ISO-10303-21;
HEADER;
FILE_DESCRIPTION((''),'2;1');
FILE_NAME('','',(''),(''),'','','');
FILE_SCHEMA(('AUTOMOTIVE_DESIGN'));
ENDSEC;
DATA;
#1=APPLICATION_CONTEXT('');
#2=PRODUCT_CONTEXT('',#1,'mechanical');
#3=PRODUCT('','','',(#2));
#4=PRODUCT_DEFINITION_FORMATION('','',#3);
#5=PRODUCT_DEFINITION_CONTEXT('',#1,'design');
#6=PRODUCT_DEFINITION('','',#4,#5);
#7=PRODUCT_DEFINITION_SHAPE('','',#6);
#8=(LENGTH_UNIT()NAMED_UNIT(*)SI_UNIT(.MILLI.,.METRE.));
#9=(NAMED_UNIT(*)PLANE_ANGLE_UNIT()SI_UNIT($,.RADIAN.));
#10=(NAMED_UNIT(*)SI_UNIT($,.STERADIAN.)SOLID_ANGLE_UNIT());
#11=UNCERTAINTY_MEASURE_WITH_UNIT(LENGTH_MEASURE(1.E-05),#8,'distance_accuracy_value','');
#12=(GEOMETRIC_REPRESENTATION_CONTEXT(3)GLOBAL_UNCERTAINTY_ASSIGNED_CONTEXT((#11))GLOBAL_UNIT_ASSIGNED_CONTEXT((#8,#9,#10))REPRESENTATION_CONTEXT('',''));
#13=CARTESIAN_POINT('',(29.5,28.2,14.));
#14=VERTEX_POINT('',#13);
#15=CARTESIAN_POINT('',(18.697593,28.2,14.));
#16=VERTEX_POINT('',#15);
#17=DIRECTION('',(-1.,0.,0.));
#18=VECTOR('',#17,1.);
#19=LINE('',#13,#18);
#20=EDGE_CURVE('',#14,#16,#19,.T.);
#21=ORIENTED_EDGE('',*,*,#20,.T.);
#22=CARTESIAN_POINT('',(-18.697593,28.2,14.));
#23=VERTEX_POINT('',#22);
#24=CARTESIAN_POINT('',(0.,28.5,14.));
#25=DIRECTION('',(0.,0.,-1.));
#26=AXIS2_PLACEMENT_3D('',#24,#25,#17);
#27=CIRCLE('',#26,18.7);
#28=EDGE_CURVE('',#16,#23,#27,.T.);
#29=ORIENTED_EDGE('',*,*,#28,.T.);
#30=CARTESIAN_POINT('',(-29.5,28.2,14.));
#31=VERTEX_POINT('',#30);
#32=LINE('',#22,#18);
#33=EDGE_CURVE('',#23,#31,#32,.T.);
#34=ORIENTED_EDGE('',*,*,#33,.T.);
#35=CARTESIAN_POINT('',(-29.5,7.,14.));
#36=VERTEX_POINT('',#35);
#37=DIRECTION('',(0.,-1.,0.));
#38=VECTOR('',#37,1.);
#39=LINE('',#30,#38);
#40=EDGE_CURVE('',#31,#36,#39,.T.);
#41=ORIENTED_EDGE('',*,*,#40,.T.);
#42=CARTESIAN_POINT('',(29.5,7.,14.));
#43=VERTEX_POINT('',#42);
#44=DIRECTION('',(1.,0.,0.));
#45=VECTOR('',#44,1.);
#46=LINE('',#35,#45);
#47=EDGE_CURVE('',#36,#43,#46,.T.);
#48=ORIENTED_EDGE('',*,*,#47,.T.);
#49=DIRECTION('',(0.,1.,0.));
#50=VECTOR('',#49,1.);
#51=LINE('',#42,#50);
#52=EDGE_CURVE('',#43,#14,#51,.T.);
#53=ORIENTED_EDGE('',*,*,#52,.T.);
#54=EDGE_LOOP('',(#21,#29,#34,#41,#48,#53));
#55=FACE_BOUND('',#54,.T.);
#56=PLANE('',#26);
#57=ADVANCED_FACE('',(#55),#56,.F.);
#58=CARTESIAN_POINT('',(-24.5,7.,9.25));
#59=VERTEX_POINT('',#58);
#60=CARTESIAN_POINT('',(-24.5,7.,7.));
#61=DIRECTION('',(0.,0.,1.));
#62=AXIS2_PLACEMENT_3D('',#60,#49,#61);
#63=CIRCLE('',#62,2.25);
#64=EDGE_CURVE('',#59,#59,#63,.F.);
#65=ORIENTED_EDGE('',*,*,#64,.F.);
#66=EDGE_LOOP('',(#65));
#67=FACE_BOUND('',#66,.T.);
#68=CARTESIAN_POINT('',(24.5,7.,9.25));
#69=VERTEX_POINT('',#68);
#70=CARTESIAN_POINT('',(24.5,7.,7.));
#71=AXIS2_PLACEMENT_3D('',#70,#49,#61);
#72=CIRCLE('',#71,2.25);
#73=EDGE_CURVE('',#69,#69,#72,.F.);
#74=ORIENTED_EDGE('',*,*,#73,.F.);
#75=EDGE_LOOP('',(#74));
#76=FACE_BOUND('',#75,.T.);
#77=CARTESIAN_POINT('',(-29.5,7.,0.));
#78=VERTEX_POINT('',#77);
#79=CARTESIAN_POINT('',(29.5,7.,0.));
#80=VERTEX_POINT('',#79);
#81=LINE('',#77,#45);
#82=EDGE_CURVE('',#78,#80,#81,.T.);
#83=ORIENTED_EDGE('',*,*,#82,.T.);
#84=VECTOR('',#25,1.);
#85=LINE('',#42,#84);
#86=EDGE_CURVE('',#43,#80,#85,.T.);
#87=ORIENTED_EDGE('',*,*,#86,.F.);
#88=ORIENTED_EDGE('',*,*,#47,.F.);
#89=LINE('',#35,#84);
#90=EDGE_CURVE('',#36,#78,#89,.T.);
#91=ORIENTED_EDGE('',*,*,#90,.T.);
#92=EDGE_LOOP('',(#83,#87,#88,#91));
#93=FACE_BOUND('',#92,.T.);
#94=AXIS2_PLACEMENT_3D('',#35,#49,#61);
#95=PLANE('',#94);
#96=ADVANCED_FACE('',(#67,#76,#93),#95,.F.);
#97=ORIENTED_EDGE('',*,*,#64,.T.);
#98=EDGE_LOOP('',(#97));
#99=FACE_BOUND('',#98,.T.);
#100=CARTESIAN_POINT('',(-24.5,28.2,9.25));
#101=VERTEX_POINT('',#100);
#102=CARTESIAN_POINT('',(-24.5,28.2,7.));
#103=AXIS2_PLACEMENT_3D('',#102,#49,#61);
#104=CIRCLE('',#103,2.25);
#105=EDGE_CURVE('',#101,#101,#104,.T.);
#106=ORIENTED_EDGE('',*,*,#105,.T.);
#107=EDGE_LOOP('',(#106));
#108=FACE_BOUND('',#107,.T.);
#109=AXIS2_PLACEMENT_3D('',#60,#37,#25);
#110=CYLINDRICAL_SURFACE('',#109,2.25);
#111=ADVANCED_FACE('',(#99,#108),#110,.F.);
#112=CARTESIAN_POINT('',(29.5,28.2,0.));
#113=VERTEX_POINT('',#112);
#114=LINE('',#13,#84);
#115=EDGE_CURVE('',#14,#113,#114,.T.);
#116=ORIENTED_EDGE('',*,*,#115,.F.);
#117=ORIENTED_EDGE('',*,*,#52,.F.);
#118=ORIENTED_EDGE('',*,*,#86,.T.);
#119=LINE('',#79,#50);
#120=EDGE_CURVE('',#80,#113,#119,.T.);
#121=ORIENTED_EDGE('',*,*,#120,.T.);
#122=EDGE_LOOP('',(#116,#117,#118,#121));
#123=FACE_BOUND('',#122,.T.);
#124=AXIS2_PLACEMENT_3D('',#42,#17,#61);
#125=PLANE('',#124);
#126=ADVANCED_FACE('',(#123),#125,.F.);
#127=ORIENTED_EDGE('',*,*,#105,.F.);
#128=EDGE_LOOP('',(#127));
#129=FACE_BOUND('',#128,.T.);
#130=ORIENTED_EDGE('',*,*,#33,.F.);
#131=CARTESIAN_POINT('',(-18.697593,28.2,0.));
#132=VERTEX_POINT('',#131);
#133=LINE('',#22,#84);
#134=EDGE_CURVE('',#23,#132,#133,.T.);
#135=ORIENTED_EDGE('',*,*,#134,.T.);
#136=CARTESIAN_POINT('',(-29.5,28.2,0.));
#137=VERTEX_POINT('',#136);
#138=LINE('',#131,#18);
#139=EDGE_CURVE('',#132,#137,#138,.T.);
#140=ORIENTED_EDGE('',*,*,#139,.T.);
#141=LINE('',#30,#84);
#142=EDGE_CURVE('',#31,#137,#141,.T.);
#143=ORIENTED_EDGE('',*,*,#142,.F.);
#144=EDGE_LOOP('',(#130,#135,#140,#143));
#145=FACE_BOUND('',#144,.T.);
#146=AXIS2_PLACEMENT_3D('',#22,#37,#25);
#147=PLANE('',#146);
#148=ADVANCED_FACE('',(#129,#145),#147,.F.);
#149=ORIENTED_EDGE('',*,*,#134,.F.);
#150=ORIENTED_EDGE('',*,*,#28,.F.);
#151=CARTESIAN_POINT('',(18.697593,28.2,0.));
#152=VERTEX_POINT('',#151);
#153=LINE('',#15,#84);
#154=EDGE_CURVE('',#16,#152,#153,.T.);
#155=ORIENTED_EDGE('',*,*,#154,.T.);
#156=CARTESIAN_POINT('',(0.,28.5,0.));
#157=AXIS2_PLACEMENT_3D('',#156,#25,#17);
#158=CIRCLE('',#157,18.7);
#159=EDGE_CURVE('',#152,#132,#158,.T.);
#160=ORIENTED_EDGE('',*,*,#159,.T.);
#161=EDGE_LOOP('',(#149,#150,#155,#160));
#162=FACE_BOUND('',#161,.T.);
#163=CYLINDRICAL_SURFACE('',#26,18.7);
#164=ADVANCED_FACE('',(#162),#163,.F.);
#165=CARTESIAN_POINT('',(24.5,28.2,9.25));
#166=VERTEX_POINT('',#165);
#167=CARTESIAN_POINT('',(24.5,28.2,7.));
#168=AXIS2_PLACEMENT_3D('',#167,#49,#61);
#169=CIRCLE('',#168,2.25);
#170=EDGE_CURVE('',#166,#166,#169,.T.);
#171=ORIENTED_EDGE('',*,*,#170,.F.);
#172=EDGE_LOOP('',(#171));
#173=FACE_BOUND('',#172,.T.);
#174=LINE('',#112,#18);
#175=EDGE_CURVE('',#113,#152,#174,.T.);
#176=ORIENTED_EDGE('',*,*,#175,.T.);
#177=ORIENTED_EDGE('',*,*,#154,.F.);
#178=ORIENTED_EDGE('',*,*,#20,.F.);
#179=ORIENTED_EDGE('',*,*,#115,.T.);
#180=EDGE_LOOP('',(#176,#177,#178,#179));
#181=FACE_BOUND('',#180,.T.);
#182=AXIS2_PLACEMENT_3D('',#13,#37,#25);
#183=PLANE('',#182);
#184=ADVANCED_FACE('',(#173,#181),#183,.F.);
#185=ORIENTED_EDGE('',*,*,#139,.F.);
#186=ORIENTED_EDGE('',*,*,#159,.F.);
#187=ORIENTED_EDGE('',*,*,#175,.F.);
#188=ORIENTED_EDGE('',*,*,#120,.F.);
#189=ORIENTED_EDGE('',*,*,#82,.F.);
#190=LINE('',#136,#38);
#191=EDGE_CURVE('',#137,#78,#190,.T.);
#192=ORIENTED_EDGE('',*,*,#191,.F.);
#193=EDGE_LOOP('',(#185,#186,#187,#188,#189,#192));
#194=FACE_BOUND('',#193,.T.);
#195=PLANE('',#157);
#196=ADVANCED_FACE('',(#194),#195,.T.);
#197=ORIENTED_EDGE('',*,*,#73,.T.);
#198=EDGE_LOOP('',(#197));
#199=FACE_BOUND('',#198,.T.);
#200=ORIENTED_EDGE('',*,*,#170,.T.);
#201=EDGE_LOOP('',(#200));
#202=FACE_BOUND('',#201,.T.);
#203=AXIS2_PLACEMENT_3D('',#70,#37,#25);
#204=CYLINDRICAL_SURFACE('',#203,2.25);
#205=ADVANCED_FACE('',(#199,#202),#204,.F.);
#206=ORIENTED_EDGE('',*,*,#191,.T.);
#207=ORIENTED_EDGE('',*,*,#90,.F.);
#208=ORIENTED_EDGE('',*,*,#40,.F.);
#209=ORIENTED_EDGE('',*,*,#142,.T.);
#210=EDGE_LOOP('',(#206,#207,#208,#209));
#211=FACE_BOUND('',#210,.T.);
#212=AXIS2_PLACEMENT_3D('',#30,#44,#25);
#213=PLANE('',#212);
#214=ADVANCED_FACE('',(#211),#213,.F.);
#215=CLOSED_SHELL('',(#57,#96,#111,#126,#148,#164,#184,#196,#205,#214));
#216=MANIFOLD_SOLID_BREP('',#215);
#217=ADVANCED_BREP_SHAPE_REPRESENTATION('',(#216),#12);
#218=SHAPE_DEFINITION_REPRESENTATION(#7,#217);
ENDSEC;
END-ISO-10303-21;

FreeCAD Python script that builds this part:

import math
import FreeCAD as App
import Part
import Sketcher
Q = App.Units.Quantity

doc = App.newDocument("Part")
body = doc.addObject("PartDesign::Body", "Body")

sketch1 = doc.addObject("Sketcher::SketchObject", "Sketch")
body.addObject(sketch1)
sketch1.AttachmentSupport = (doc.XY_Plane, [""])
sketch1.MapMode = "FlatFace"
sketch1.addGeometry([
    Part.LineSegment(App.Vector(-30, 7, 0), App.Vector(30, 7, 0)),
    Part.LineSegment(App.Vector(30, 7, 0), App.Vector(30, 28, 0)),
    Part.LineSegment(App.Vector(30, 28, 0), App.Vector(19, 28, 0)),
    Part.ArcOfCircle(Part.Circle(App.Vector(0, 28, 0), App.Vector(0, 0, 1), 19), math.radians(-179), math.radians(-1)),
    Part.LineSegment(App.Vector(-19, 28, 0), App.Vector(-30, 28, 0)),
    Part.LineSegment(App.Vector(-30, 28, 0), App.Vector(-30, 7, 0)),
], False)
sketch1.addConstraint([
    Sketcher.Constraint("Coincident", 0, 2, 1, 1),
    Sketcher.Constraint("Coincident", 1, 2, 2, 1),
    Sketcher.Constraint("Coincident", 2, 2, 3, 2),
    Sketcher.Constraint("Coincident", 3, 1, 4, 1),
    Sketcher.Constraint("Coincident", 4, 2, 5, 1),
    Sketcher.Constraint("Coincident", 5, 2, 0, 1),
    Sketcher.Constraint("Horizontal", 0),
    Sketcher.Constraint("Vertical", 1),
    Sketcher.Constraint("Horizontal", 2),
    Sketcher.Constraint("Horizontal", 4),
    Sketcher.Constraint("Vertical", 5),
    Sketcher.Constraint("Symmetric", 2, 2, 3, 1, -2),
    Sketcher.Constraint("Equal", 2, 4),
    Sketcher.Constraint("Radius", 3, Q("18.7 mm")),
    Sketcher.Constraint("DistanceX", 0, 1, 0, 2, Q("59 mm")),
    Sketcher.Constraint("DistanceY", 1, 1, 1, 2, Q("21.2 mm")),
    Sketcher.Constraint("DistanceY", -1, 1, 0, 2, Q("7 mm")),
    Sketcher.Constraint("DistanceY", -1, 1, 3, 3, Q("28.5 mm")),
])
pad1 = doc.addObject("PartDesign::Pad", "Pad")
body.addObject(pad1)
pad1.Profile = sketch1
pad1.Length = 14

sketch2 = doc.addObject("Sketcher::SketchObject", "Sketch001")
body.addObject(sketch2)
sketch2.AttachmentSupport = (doc.XZ_Plane, [""])
sketch2.MapMode = "FlatFace"
sketch2.addGeometry([
    Part.Circle(App.Vector(-24.5, 7, 0), App.Vector(0, 0, 1), 2.2),
    Part.Circle(App.Vector(24.5, 7, 0), App.Vector(0, 0, 1), 2.2),
], False)
sketch2.addConstraint([
    Sketcher.Constraint("Equal", 0, 1),
    Sketcher.Constraint("Symmetric", 0, 3, 1, 3, -2),
    Sketcher.Constraint("Diameter", 0, Q("4.5 mm")),
    Sketcher.Constraint("DistanceY", -1, 1, 0, 3, Q("7 mm")),
    Sketcher.Constraint("DistanceX", 0, 3, 1, 3, Q("49 mm")),
])
pocket1 = doc.addObject("PartDesign::Pocket", "Pocket")
body.addObject(pocket1)
pocket1.Profile = sketch2
pocket1.Type = "ThroughAll"
pocket1.Midplane = True

doc.recompute()
